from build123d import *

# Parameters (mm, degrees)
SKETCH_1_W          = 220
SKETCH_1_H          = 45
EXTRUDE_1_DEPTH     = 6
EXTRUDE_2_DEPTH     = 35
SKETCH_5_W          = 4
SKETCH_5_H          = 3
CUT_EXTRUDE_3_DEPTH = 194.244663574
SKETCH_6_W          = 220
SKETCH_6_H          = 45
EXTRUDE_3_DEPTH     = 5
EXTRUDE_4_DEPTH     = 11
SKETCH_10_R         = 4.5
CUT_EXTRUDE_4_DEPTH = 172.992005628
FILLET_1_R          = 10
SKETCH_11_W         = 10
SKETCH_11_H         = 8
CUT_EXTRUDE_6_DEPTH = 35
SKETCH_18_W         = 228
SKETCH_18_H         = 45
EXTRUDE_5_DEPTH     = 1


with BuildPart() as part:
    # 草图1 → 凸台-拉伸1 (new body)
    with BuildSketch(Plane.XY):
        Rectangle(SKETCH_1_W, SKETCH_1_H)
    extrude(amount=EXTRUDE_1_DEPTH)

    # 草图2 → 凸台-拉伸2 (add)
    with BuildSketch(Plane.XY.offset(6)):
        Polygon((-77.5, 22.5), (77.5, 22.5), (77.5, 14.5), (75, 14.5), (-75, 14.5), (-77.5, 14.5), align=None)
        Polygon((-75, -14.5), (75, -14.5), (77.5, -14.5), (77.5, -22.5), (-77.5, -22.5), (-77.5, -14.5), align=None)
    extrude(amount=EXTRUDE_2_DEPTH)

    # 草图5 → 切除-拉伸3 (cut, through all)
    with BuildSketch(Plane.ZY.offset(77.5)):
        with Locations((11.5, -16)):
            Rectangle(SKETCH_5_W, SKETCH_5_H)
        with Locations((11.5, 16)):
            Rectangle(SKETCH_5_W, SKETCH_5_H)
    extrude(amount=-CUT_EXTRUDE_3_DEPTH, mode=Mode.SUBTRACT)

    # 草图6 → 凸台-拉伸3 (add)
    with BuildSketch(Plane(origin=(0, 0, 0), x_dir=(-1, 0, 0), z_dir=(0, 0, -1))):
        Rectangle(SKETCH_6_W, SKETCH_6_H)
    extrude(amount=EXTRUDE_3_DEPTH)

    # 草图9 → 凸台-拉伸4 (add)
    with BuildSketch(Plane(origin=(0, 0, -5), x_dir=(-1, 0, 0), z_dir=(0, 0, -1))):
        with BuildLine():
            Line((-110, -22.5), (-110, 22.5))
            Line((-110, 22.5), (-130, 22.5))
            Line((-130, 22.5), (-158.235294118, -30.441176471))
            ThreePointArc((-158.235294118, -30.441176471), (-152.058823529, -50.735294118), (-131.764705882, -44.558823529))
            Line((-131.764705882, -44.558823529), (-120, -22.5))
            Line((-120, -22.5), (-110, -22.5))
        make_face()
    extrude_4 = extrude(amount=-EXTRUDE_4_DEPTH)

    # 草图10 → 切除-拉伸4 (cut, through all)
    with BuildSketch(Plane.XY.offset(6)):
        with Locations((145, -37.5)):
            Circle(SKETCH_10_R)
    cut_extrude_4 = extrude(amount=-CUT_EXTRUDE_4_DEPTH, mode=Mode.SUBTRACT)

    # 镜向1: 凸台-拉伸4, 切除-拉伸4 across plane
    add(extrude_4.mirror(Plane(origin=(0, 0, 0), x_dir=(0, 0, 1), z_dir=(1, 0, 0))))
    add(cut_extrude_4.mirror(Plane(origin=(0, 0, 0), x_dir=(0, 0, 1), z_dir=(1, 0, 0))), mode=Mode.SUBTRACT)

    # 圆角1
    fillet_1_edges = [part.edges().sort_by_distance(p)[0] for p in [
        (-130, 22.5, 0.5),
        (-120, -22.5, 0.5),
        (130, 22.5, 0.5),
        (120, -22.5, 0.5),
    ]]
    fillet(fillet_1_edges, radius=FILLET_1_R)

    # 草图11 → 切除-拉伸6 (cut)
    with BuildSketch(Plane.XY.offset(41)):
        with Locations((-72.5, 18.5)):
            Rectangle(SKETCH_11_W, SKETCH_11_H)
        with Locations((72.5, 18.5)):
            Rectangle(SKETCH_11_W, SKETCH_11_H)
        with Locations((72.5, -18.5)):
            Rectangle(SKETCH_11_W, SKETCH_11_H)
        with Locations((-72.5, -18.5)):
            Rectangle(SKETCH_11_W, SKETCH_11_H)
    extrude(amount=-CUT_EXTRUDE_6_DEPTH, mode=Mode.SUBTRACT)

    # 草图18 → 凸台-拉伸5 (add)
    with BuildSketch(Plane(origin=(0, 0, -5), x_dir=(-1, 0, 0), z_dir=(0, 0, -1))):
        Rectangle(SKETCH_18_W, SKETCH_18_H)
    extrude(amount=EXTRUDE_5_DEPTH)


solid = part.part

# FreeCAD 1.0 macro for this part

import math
import FreeCAD as App
import Part
import Sketcher
from FreeCAD import Vector
Q = App.Units.Quantity


def edges_at(feature, points):
    """Names of the edges that pass closest to the given points."""
    edges = feature.Shape.Edges
    near = lambda p: min(range(len(edges)), key=lambda i: edges[i].distToShape(Part.Vertex(*p))[0])
    return sorted({f"Edge{near(p) + 1}" for p in points})


def add_polygon(sketch, points):
    """Adds a closed chain of lines whose ends are joined by coincident constraints."""
    first, n = sketch.GeometryCount, len(points)
    for a, b in zip(points, points[1:] + points[:1]):
        sketch.addGeometry(Part.LineSegment(App.Vector(*a, 0), App.Vector(*b, 0)), False)
    for i in range(n):
        sketch.addConstraint(Sketcher.Constraint("Coincident", first + i, 2, first + (i + 1) % n, 1))

doc = App.newDocument("Part")
body = doc.addObject("PartDesign::Body", "Body")

# Sketch on XY plane
sketch1 = body.newObject("Sketcher::SketchObject", "Sketch")
sketch1.AttachmentSupport = (doc.getObject("XY_Plane"), [""])
sketch1.MapMode = "FlatFace"
add_polygon(sketch1, [(-110, 22.5), (-110, -22.5), (110, -22.5), (110, 22.5)])  # lines 0-3
sketch1.addConstraint(Sketcher.Constraint("Vertical", 0))
sketch1.addConstraint(Sketcher.Constraint("Horizontal", 1))
sketch1.addConstraint(Sketcher.Constraint("Vertical", 2))
sketch1.addConstraint(Sketcher.Constraint("Horizontal", 3))
sketch1.addConstraint(Sketcher.Constraint("Symmetric", 0, 2, 2, 2, -1, 1))
sketch1.addConstraint(Sketcher.Constraint("DistanceX", 1, 1, 1, 2, Q("220 mm")))
sketch1.addConstraint(Sketcher.Constraint("DistanceY", 0, 2, 0, 1, Q("45 mm")))
pad1 = body.newObject("PartDesign::Pad", "Pad")
pad1.Profile = sketch1
pad1.Length = 6

# Sketch on XY plane
sketch2 = body.newObject("Sketcher::SketchObject", "Sketch001")
sketch2.AttachmentSupport = (doc.getObject("XY_Plane"), [""])
sketch2.MapMode = "FlatFace"
sketch2.AttachmentOffset = App.Placement(Vector(0, 0, 6), App.Rotation())
add_polygon(sketch2, [(77.5, 22.5), (-77.5, 22.5), (-77.5, 14.5), (77.5, 14.5)])  # lines 0-3
add_polygon(sketch2, [(77.5, -14.5), (-77.5, -14.5), (-77.5, -22.5), (77.5, -22.5)])  # lines 4-7
sketch2.addConstraint(Sketcher.Constraint("Horizontal", 0))
sketch2.addConstraint(Sketcher.Constraint("Vertical", 1))
sketch2.addConstraint(Sketcher.Constraint("Horizontal", 2))
sketch2.addConstraint(Sketcher.Constraint("Vertical", 3))
sketch2.addConstraint(Sketcher.Constraint("Horizontal", 4))
sketch2.addConstraint(Sketcher.Constraint("Vertical", 5))
sketch2.addConstraint(Sketcher.Constraint("Horizontal", 6))
sketch2.addConstraint(Sketcher.Constraint("Vertical", 7))
sketch2.addConstraint(Sketcher.Constraint("Symmetric", 2, 2, 4, 2, -1, 1))
sketch2.addConstraint(Sketcher.Constraint("Symmetric", 0, 2, 6, 2, -1, 1))
sketch2.addConstraint(Sketcher.Constraint("Vertical", 1, 2, 4, 2))
sketch2.addConstraint(Sketcher.Constraint("DistanceX", 0, 2, 0, 1, Q("155 mm")))
sketch2.addConstraint(Sketcher.Constraint("DistanceY", 1, 2, 1, 1, Q("8 mm")))
sketch2.addConstraint(Sketcher.Constraint("DistanceY", 4, 2, 1, 2, Q("29 mm")))
pad2 = body.newObject("PartDesign::Pad", "Pad001")
pad2.Profile = sketch2
pad2.Length = 35

# Sketch on YZ plane
sketch3 = body.newObject("Sketcher::SketchObject", "Sketch002")
sketch3.AttachmentSupport = (doc.getObject("YZ_Plane"), [""])
sketch3.MapMode = "FlatFace"
sketch3.AttachmentOffset = App.Placement(Vector(0, 0, -77.5), App.Rotation())
add_polygon(sketch3, [(-14.5, 9.5), (-17.5, 9.5), (-17.5, 13.5), (-14.5, 13.5)])  # lines 0-3
add_polygon(sketch3, [(17.5, 9.5), (14.5, 9.5), (14.5, 13.5), (17.5, 13.5)])  # lines 4-7
sketch3.addConstraint(Sketcher.Constraint("Horizontal", 0))
sketch3.addConstraint(Sketcher.Constraint("Vertical", 1))
sketch3.addConstraint(Sketcher.Constraint("Horizontal", 2))
sketch3.addConstraint(Sketcher.Constraint("Vertical", 3))
sketch3.addConstraint(Sketcher.Constraint("Horizontal", 4))
sketch3.addConstraint(Sketcher.Constraint("Vertical", 5))
sketch3.addConstraint(Sketcher.Constraint("Horizontal", 6))
sketch3.addConstraint(Sketcher.Constraint("Vertical", 7))
sketch3.addConstraint(Sketcher.Constraint("Symmetric", 3, 2, 4, 2, -2))
sketch3.addConstraint(Sketcher.Constraint("Symmetric", 1, 2, 6, 2, -2))
sketch3.addConstraint(Sketcher.Constraint("DistanceX", 0, 2, 0, 1, Q("3 mm")))
sketch3.addConstraint(Sketcher.Constraint("DistanceY", 1, 1, 1, 2, Q("4 mm")))
sketch3.addConstraint(Sketcher.Constraint("DistanceX", 3, 2, 4, 2, Q("29 mm")))
sketch3.addConstraint(Sketcher.Constraint("DistanceY", -1, 1, 0, 2, Q("9.5 mm")))
pocket1 = body.newObject("PartDesign::Pocket", "Pocket")
pocket1.Profile = sketch3
pocket1.Type = "ThroughAll"
pocket1.Reversed = True

# Sketch on XY plane
sketch4 = body.newObject("Sketcher::SketchObject", "Sketch003")
sketch4.AttachmentSupport = (doc.getObject("XY_Plane"), [""])
sketch4.MapMode = "FlatFace"
add_polygon(sketch4, [(110, 22.5), (110, -22.5), (-110, -22.5), (-110, 22.5)])  # lines 0-3
sketch4.addConstraint(Sketcher.Constraint("Vertical", 0))
sketch4.addConstraint(Sketcher.Constraint("Horizontal", 1))
sketch4.addConstraint(Sketcher.Constraint("Vertical", 2))
sketch4.addConstraint(Sketcher.Constraint("Horizontal", 3))
sketch4.addConstraint(Sketcher.Constraint("Symmetric", 0, 2, 2, 2, -1, 1))
sketch4.addConstraint(Sketcher.Constraint("DistanceX", 1, 2, 1, 1, Q("220 mm")))
sketch4.addConstraint(Sketcher.Constraint("DistanceY", 0, 2, 0, 1, Q("45 mm")))
pad3 = body.newObject("PartDesign::Pad", "Pad002")
pad3.Profile = sketch4
pad3.Length = 5
pad3.Reversed = True

# Sketch on XY plane
sketch5 = body.newObject("Sketcher::SketchObject", "Sketch004")
sketch5.AttachmentSupport = (doc.getObject("XY_Plane"), [""])
sketch5.MapMode = "FlatFace"
sketch5.AttachmentOffset = App.Placement(Vector(0, 0, -5), App.Rotation())
sketch5.addGeometry(Part.LineSegment(Vector(110, -22.5, 0), Vector(110, 22.5, 0)), False)
sketch5.addGeometry(Part.LineSegment(Vector(110, 22.5, 0), Vector(130, 22.5, 0)), False)
sketch5.addGeometry(Part.LineSegment(Vector(130, 22.5, 0), Vector(158.235294, -30.441176, 0)), False)
sketch5.addGeometry(Part.ArcOfCircle(Part.Circle(Vector(145, -37.5, 0), Vector(0, 0, 1), 15), math.radians(-151.927513), math.radians(28.072487)), False)
sketch5.addGeometry(Part.LineSegment(Vector(131.764706, -44.558824, 0), Vector(120, -22.5, 0)), False)
sketch5.addGeometry(Part.LineSegment(Vector(120, -22.5, 0), Vector(110, -22.5, 0)), False)
sketch5.addConstraint(Sketcher.Constraint("Coincident", 0, 2, 1, 1))
sketch5.addConstraint(Sketcher.Constraint("Coincident", 1, 2, 2, 1))
sketch5.addConstraint(Sketcher.Constraint("Tangent", 2, 2, 3, 2))
sketch5.addConstraint(Sketcher.Constraint("Tangent", 3, 1, 4, 1))
sketch5.addConstraint(Sketcher.Constraint("Coincident", 4, 2, 5, 1))
sketch5.addConstraint(Sketcher.Constraint("Coincident", 5, 2, 0, 1))
sketch5.addConstraint(Sketcher.Constraint("Vertical", 0))
sketch5.addConstraint(Sketcher.Constraint("Horizontal", 1))
sketch5.addConstraint(Sketcher.Constraint("Horizontal", 5))
sketch5.addConstraint(Sketcher.Constraint("Parallel", 2, 4))
sketch5.addConstraint(Sketcher.Constraint("Radius", 3, Q("15 mm")))
sketch5.addConstraint(Sketcher.Constraint("DistanceX", 1, 1, 1, 2, Q("20 mm")))
sketch5.addConstraint(Sketcher.Constraint("DistanceX", 5, 2, 5, 1, Q("10 mm")))
sketch5.addConstraint(Sketcher.Constraint("DistanceY", 0, 1, 0, 2, Q("45 mm")))
sketch5.addConstraint(Sketcher.Constraint("Distance", 2, Q("60 mm")))
sketch5.addConstraint(Sketcher.Constraint("DistanceX", -1, 1, 3, 3, Q("145 mm")))
sketch5.addConstraint(Sketcher.Constraint("DistanceY", 3, 3, -1, 1, Q("37.5 mm")))
pad4 = body.newObject("PartDesign::Pad", "Pad003")
pad4.Profile = sketch5
pad4.Length = 11

# Sketch on XY plane
sketch6 = body.newObject("Sketcher::SketchObject", "Sketch005")
sketch6.AttachmentSupport = (doc.getObject("XY_Plane"), [""])
sketch6.MapMode = "FlatFace"
sketch6.AttachmentOffset = App.Placement(Vector(0, 0, 6), App.Rotation())
sketch6.addGeometry(Part.Circle(Vector(145, -37.5, 0), Vector(0, 0, 1), 4.5), False)
sketch6.addConstraint(Sketcher.Constraint("Diameter", 0, Q("9 mm")))
sketch6.addConstraint(Sketcher.Constraint("DistanceX", -1, 1, 0, 3, Q("145 mm")))
sketch6.addConstraint(Sketcher.Constraint("DistanceY", 0, 3, -1, 1, Q("37.5 mm")))
pocket2 = body.newObject("PartDesign::Pocket", "Pocket001")
pocket2.Profile = sketch6
pocket2.Type = "ThroughAll"
doc.recompute()

mirrored = body.newObject("PartDesign::Mirrored", "Mirrored")
mirrored.Originals = [pad4, pocket2]
mirrored.MirrorPlane = (doc.getObject("YZ_Plane"), [""])
body.Tip = mirrored
doc.recompute()

fillet = body.newObject("PartDesign::Fillet", "Fillet")
fillet.Base = (mirrored, edges_at(mirrored, [
    (-130, 22.5, 0.5),
    (-120, -22.5, 0.5),
    (130, 22.5, 0.5),
    (120, -22.5, 0.5),
]))
fillet.Radius = 10

# Sketch on XY plane
sketch7 = body.newObject("Sketcher::SketchObject", "Sketch006")
sketch7.AttachmentSupport = (doc.getObject("XY_Plane"), [""])
sketch7.MapMode = "FlatFace"
sketch7.AttachmentOffset = App.Placement(Vector(0, 0, 41), App.Rotation())
add_polygon(sketch7, [(-77.5, 22.5), (-77.5, 14.5), (-67.5, 14.5), (-67.5, 22.5)])  # lines 0-3
add_polygon(sketch7, [(67.5, 22.5), (67.5, 14.5), (77.5, 14.5), (77.5, 22.5)])  # lines 4-7
add_polygon(sketch7, [(67.5, -14.5), (67.5, -22.5), (77.5, -22.5), (77.5, -14.5)])  # lines 8-11
add_polygon(sketch7, [(-77.5, -14.5), (-77.5, -22.5), (-67.5, -22.5), (-67.5, -14.5)])  # lines 12-15
sketch7.addConstraint(Sketcher.Constraint("Vertical", 0))
sketch7.addConstraint(Sketcher.Constraint("Horizontal", 1))
sketch7.addConstraint(Sketcher.Constraint("Vertical", 2))
sketch7.addConstraint(Sketcher.Constraint("Horizontal", 3))
sketch7.addConstraint(Sketcher.Constraint("Vertical", 4))
sketch7.addConstraint(Sketcher.Constraint("Horizontal", 5))
sketch7.addConstraint(Sketcher.Constraint("Vertical", 6))
sketch7.addConstraint(Sketcher.Constraint("Horizontal", 7))
sketch7.addConstraint(Sketcher.Constraint("Vertical", 8))
sketch7.addConstraint(Sketcher.Constraint("Horizontal", 9))
sketch7.addConstraint(Sketcher.Constraint("Vertical", 10))
sketch7.addConstraint(Sketcher.Constraint("Horizontal", 11))
sketch7.addConstraint(Sketcher.Constraint("Vertical", 12))
sketch7.addConstraint(Sketcher.Constraint("Horizontal", 13))
sketch7.addConstraint(Sketcher.Constraint("Vertical", 14))
sketch7.addConstraint(Sketcher.Constraint("Horizontal", 15))
sketch7.addConstraint(Sketcher.Constraint("Symmetric", 2, 2, 8, 2, -1, 1))
sketch7.addConstraint(Sketcher.Constraint("Symmetric", 0, 2, 10, 2, -1, 1))
sketch7.addConstraint(Sketcher.Constraint("Symmetric", 6, 2, 12, 2, -1, 1))
sketch7.addConstraint(Sketcher.Constraint("Symmetric", 4, 2, 14, 2, -1, 1))
sketch7.addConstraint(Sketcher.Constraint("Symmetric", 1, 2, 4, 2, -2))
sketch7.addConstraint(Sketcher.Constraint("Symmetric", 3, 2, 6, 2, -2))
sketch7.addConstraint(Sketcher.Constraint("DistanceX", 1, 1, 1, 2, Q("10 mm")))
sketch7.addConstraint(Sketcher.Constraint("DistanceY", 0, 2, 0, 1, Q("8 mm")))
sketch7.addConstraint(Sketcher.Constraint("DistanceX", 1, 2, 4, 2, Q("135 mm")))
sketch7.addConstraint(Sketcher.Constraint("DistanceY", 8, 2, 4, 2, Q("37 mm")))
pocket3 = body.newObject("PartDesign::Pocket", "Pocket002")
pocket3.Profile = sketch7
pocket3.Length = 35

# Sketch on XY plane
sketch8 = body.newObject("Sketcher::SketchObject", "Sketch007")
sketch8.AttachmentSupport = (doc.getObject("XY_Plane"), [""])
sketch8.MapMode = "FlatFace"
sketch8.AttachmentOffset = App.Placement(Vector(0, 0, -5), App.Rotation())
add_polygon(sketch8, [(114, 22.5), (114, -22.5), (-114, -22.5), (-114, 22.5)])  # lines 0-3
sketch8.addConstraint(Sketcher.Constraint("Vertical", 0))
sketch8.addConstraint(Sketcher.Constraint("Horizontal", 1))
sketch8.addConstraint(Sketcher.Constraint("Vertical", 2))
sketch8.addConstraint(Sketcher.Constraint("Horizontal", 3))
sketch8.addConstraint(Sketcher.Constraint("Symmetric", 0, 2, 2, 2, -1, 1))
sketch8.addConstraint(Sketcher.Constraint("DistanceX", 1, 2, 1, 1, Q("228 mm")))
sketch8.addConstraint(Sketcher.Constraint("DistanceY", 0, 2, 0, 1, Q("45 mm")))
pad5 = body.newObject("PartDesign::Pad", "Pad004")
pad5.Profile = sketch8
pad5.Length = 1
pad5.Reversed = True

doc.recompute()
